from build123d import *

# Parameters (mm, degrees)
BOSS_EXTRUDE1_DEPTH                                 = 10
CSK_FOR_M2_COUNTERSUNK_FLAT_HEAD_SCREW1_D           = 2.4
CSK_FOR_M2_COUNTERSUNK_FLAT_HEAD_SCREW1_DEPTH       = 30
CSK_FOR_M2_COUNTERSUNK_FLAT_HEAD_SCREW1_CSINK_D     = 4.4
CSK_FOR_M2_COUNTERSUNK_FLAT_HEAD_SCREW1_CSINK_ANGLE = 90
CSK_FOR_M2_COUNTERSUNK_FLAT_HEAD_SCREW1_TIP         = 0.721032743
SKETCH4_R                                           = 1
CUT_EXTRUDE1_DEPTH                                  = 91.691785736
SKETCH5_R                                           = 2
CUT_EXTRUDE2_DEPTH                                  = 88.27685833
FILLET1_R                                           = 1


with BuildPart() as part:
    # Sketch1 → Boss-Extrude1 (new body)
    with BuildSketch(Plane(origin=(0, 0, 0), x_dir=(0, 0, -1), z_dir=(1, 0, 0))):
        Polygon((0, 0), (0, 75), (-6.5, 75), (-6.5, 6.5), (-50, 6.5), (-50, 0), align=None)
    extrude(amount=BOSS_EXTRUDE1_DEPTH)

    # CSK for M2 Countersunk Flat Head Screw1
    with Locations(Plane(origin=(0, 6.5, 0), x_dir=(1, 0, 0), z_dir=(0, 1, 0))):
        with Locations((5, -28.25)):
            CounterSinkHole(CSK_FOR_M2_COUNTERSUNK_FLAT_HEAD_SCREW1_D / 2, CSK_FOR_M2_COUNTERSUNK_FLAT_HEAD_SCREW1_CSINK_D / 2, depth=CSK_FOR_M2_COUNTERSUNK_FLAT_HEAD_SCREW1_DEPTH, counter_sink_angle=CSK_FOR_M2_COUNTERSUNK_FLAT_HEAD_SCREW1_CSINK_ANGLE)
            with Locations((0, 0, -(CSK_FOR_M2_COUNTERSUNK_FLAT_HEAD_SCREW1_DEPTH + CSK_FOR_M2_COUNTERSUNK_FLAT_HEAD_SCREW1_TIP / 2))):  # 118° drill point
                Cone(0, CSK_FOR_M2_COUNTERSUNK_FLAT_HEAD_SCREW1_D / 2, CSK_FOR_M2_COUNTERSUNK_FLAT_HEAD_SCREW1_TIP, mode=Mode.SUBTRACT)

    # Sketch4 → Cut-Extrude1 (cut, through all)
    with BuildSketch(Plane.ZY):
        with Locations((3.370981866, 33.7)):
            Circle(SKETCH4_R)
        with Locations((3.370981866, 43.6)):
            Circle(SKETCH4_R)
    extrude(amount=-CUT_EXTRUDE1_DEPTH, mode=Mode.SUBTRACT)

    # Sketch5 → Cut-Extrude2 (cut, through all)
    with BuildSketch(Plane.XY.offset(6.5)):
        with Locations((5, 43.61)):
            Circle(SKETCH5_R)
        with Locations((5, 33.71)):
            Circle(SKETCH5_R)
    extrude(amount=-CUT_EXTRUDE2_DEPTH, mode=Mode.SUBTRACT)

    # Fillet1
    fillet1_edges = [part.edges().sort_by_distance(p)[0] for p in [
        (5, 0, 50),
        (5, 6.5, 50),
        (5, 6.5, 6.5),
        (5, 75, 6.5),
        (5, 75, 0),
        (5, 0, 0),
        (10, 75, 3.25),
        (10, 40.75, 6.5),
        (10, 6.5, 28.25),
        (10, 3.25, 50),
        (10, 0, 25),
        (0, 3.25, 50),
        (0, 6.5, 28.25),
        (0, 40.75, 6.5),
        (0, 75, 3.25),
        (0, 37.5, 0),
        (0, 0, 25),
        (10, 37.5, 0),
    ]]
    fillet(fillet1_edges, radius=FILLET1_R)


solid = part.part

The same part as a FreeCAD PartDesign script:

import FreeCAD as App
import Part
import Sketcher
from FreeCAD import Vector
Q = App.Units.Quantity


def edges_at(feature, points):
    """Names of the edges that pass closest to the given points."""
    edges = feature.Shape.Edges
    near = lambda p: min(range(len(edges)), key=lambda i: edges[i].distToShape(Part.Vertex(*p))[0])
    return sorted({f"Edge{near(p) + 1}" for p in points})


def add_polygon(sketch, points):
    """Adds a closed chain of lines whose ends are joined by coincident constraints."""
    first, n = sketch.GeometryCount, len(points)
    for a, b in zip(points, points[1:] + points[:1]):
        sketch.addGeometry(Part.LineSegment(App.Vector(*a, 0), App.Vector(*b, 0)), False)
    for i in range(n):
        sketch.addConstraint(Sketcher.Constraint("Coincident", first + i, 2, first + (i + 1) % n, 1))

doc = App.newDocument("Part")
params = doc.addObject("Spreadsheet::Sheet", "Params")
for row, (alias, value) in enumerate([
    ("sketch1_width", "75 mm"),
    ("sketch1_height", "50 mm"),
    ("sketch1_width2", "68.5 mm"),
    ("pad1_length", "10 mm"),
    ("sketch2_diameter", "2.4 mm"),
    ("hole_diameter", "2.4 mm"),
    ("hole_depth", "30 mm"),
    ("hole_csink_diameter", "4.4 mm"),
    ("sketch3_diameter", "2 mm"),
    ("sketch4_diameter", "4 mm"),
    ("fillet_radius", "1 mm"),
], start=1):
    params.set(f"A{row}", alias)
    params.set(f"B{row}", "=" + value)
    params.setAlias(f"B{row}", alias)

body = doc.addObject("PartDesign::Body", "Body")

# Sketch on YZ plane
sketch1 = doc.addObject("Sketcher::SketchObject", "Sketch")
body.addObject(sketch1)
sketch1.AttachmentSupport = (doc.YZ_Plane, [""])
sketch1.MapMode = "FlatFace"
add_polygon(sketch1, [(0, 0), (75, 0), (75, 6.5), (6.5, 6.5), (6.5, 50), (0, 50)])  # lines 0-5
sketch1.addConstraint(Sketcher.Constraint("Horizontal", 0))
sketch1.addConstraint(Sketcher.Constraint("Vertical", 1))
sketch1.addConstraint(Sketcher.Constraint("Horizontal", 2))
sketch1.addConstraint(Sketcher.Constraint("Vertical", 3))
sketch1.addConstraint(Sketcher.Constraint("Horizontal", 4))
sketch1.addConstraint(Sketcher.Constraint("Vertical", 5))
sketch1.addConstraint(Sketcher.Constraint("Coincident", 5, 2, -1, 1))
sketch1.addConstraint(Sketcher.Constraint("Equal", 4, 1))
sketch1.addConstraint(Sketcher.Constraint("DistanceX", 0, 1, 0, 2, Q("75 mm")))
sketch1.addConstraint(Sketcher.Constraint("DistanceY", 5, 2, 5, 1, Q("50 mm")))
sketch1.addConstraint(Sketcher.Constraint("DistanceX", 2, 2, 2, 1, Q("68.5 mm")))
sketch1.setExpression("Constraints[14]", "Params.sketch1_width")
sketch1.setExpression("Constraints[15]", "Params.sketch1_height")
sketch1.setExpression("Constraints[16]", "Params.sketch1_width2")
pad1 = doc.addObject("PartDesign::Pad", "Pad")
body.addObject(pad1)
pad1.Profile = sketch1
pad1.setExpression("Length", "Params.pad1_length")

# Sketch on XZ plane
sketch2 = doc.addObject("Sketcher::SketchObject", "Sketch001")
body.addObject(sketch2)
sketch2.AttachmentSupport = (doc.XZ_Plane, [""])
sketch2.MapMode = "FlatFace"
sketch2.AttachmentOffset = App.Placement(Vector(0, 0, -6.5), App.Rotation())
sketch2.addGeometry(Part.Circle(Vector(5, 28.25, 0), Vector(0, 0, 1), 1.2), False)
sketch2.addConstraint(Sketcher.Constraint("Diameter", 0, Q("2.4 mm")))
sketch2.addConstraint(Sketcher.Constraint("DistanceX", -1, 1, 0, 3, Q("5 mm")))
sketch2.addConstraint(Sketcher.Constraint("DistanceY", -1, 1, 0, 3, Q("28.25 mm")))
sketch2.setExpression("Constraints[0]", "Params.sketch2_diameter")
doc.recompute()
hole = doc.addObject("PartDesign::Hole", "Hole")
body.addObject(hole)
hole.Profile = sketch2
hole.ThreadType = "None"
hole.setExpression("Diameter", "Params.hole_diameter")
hole.DepthType = "Dimension"
hole.setExpression("Depth", "Params.hole_depth")
hole.DrillPoint = "Angled"
hole.DrillPointAngle = 118
hole.HoleCutType = "Countersink"
hole.setExpression("HoleCutDiameter", "Params.hole_csink_diameter")
hole.HoleCutCountersinkAngle = 90
hole.Reversed = True

# Sketch on YZ plane
sketch3 = doc.addObject("Sketcher::SketchObject", "Sketch002")
body.addObject(sketch3)
sketch3.AttachmentSupport = (doc.YZ_Plane, [""])
sketch3.MapMode = "FlatFace"
sketch3.addGeometry(Part.Circle(Vector(33.7, 3.370982, 0), Vector(0, 0, 1), 1), False)
sketch3.addGeometry(Part.Circle(Vector(43.6, 3.370982, 0), Vector(0, 0, 1), 1), False)
sketch3.addConstraint(Sketcher.Constraint("Equal", 0, 1))
sketch3.addConstraint(Sketcher.Constraint("Horizontal", 0, 3, 1, 3))
sketch3.addConstraint(Sketcher.Constraint("Diameter", 0, Q("2 mm")))
sketch3.addConstraint(Sketcher.Constraint("DistanceX", -1, 1, 0, 3, Q("33.7 mm")))
sketch3.addConstraint(Sketcher.Constraint("DistanceX", -1, 1, 1, 3, Q("43.6 mm")))
sketch3.addConstraint(Sketcher.Constraint("DistanceY", -1, 1, 0, 3, Q("3.370982 mm")))
sketch3.setExpression("Constraints[2]", "Params.sketch3_diameter")
pocket1 = doc.addObject("PartDesign::Pocket", "Pocket")
body.addObject(pocket1)
pocket1.Profile = sketch3
pocket1.Type = "ThroughAll"
pocket1.Reversed = True

# Sketch on XY plane
sketch4 = doc.addObject("Sketcher::SketchObject", "Sketch003")
body.addObject(sketch4)
sketch4.AttachmentSupport = (doc.XY_Plane, [""])
sketch4.MapMode = "FlatFace"
sketch4.AttachmentOffset = App.Placement(Vector(0, 0, 6.5), App.Rotation())
sketch4.addGeometry(Part.Circle(Vector(5, 43.61, 0), Vector(0, 0, 1), 2), False)
sketch4.addGeometry(Part.Circle(Vector(5, 33.71, 0), Vector(0, 0, 1), 2), False)
sketch4.addConstraint(Sketcher.Constraint("Equal", 0, 1))
sketch4.addConstraint(Sketcher.Constraint("Vertical", 0, 3, 1, 3))
sketch4.addConstraint(Sketcher.Constraint("Diameter", 0, Q("4 mm")))
sketch4.addConstraint(Sketcher.Constraint("DistanceX", -1, 1, 0, 3, Q("5 mm")))
sketch4.addConstraint(Sketcher.Constraint("DistanceY", 1, 3, 0, 3, Q("9.9 mm")))
sketch4.addConstraint(Sketcher.Constraint("DistanceY", -1, 1, 0, 3, Q("43.61 mm")))
sketch4.setExpression("Constraints[2]", "Params.sketch4_diameter")
pocket2 = doc.addObject("PartDesign::Pocket", "Pocket001")
body.addObject(pocket2)
pocket2.Profile = sketch4
pocket2.Type = "ThroughAll"
doc.recompute()

fillet = doc.addObject("PartDesign::Fillet", "Fillet")
body.addObject(fillet)
fillet.Base = (pocket2, edges_at(pocket2, [
    (5, 0, 50),
    (5, 6.5, 50),
    (5, 6.5, 6.5),
    (5, 75, 6.5),
    (5, 75, 0),
    (5, 0, 0),
    (10, 75, 3.25),
    (10, 40.75, 6.5),
    (10, 6.5, 28.25),
    (10, 3.25, 50),
    (10, 0, 25),
    (0, 3.25, 50),
    (0, 6.5, 28.25),
    (0, 40.75, 6.5),
    (0, 75, 3.25),
    (0, 37.5, 0),
    (0, 0, 25),
    (10, 37.5, 0),
]))
fillet.setExpression("Radius", "Params.fillet_radius")

doc.recompute()
